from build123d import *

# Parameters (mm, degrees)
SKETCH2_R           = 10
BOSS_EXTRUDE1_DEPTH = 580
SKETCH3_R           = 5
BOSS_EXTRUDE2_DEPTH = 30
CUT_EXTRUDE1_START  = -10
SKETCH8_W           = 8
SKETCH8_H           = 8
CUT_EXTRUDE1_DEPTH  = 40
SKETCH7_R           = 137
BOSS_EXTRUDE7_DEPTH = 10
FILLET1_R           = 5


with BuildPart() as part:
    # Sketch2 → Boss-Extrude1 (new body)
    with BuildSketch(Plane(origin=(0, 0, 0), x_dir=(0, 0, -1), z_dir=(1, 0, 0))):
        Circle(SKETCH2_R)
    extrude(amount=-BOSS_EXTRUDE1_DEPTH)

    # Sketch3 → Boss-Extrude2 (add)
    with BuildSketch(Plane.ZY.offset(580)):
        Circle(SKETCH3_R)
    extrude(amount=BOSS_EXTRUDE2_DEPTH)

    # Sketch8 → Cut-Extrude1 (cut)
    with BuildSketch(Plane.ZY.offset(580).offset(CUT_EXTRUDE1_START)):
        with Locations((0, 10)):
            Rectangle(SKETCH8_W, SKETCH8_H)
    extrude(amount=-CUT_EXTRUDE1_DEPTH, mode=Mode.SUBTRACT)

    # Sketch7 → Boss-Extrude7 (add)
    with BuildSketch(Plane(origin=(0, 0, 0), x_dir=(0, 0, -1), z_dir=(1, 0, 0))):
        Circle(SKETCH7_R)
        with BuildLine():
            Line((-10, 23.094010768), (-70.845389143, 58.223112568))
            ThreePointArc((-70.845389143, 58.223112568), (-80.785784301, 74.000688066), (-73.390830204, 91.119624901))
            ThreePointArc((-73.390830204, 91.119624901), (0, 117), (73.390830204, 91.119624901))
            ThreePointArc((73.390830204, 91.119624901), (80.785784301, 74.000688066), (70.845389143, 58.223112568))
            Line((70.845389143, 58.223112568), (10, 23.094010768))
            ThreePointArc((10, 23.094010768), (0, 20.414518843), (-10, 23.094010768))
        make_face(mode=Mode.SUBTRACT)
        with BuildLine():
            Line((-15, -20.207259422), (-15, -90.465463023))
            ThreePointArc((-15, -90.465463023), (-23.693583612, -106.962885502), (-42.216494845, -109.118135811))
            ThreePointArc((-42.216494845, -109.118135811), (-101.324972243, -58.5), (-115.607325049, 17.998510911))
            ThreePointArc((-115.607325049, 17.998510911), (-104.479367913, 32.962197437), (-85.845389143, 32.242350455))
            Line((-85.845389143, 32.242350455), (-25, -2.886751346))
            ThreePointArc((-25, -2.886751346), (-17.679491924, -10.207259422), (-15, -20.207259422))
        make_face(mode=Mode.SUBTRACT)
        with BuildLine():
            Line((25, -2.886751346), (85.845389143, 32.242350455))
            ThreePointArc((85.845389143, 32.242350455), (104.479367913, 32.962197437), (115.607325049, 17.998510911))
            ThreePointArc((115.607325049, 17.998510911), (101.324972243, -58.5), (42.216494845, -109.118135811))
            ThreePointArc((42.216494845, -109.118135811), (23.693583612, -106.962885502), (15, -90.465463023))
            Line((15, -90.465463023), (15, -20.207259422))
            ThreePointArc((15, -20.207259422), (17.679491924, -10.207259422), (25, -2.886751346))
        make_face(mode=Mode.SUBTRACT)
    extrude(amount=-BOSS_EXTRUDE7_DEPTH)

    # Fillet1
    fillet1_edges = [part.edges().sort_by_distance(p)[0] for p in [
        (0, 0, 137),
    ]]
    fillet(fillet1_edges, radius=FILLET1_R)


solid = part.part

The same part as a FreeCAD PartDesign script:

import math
import FreeCAD as App
import Part
import Sketcher

V = App.Vector
Q = App.Units.Quantity


def edges_at(feature, points):
    """Names of the edges that pass closest to the given points."""
    edges = feature.Shape.Edges
    near = lambda p: min(range(len(edges)), key=lambda i: edges[i].distToShape(Part.Vertex(*p))[0])
    return sorted({f"Edge{near(p) + 1}" for p in points})

doc = App.newDocument("Part")
body = doc.addObject("PartDesign::Body", "Body")

# Sketch on YZ plane
sketch1 = body.newObject("Sketcher::SketchObject", "Sketch")
sketch1.AttachmentSupport = (doc.getObject("YZ_Plane"), [""])
sketch1.MapMode = "FlatFace"
sketch1.addGeometry(Part.Circle(V(0, 0, 0), V(0, 0, 1), 10), False)
sketch1.addConstraint(Sketcher.Constraint("Coincident", 0, 3, -1, 1))
sketch1.addConstraint(Sketcher.Constraint("Diameter", 0, 20.0))
pad1 = body.newObject("PartDesign::Pad", "Pad")
pad1.Profile = sketch1
pad1.Length = 580
pad1.Reversed = True

# Sketch on YZ plane
sketch2 = body.newObject("Sketcher::SketchObject", "Sketch001")
sketch2.AttachmentSupport = (doc.getObject("YZ_Plane"), [""])
sketch2.MapMode = "FlatFace"
sketch2.AttachmentOffset = App.Placement(V(0, 0, -580), App.Rotation())
sketch2.addGeometry(Part.Circle(V(0, 0, 0), V(0, 0, 1), 5), False)
sketch2.addConstraint(Sketcher.Constraint("Coincident", 0, 3, -1, 1))
sketch2.addConstraint(Sketcher.Constraint("Diameter", 0, 10.0))
pad2 = body.newObject("PartDesign::Pad", "Pad001")
pad2.Profile = sketch2
pad2.Length = 30
pad2.Reversed = True

# Sketch on YZ plane
sketch3 = body.newObject("Sketcher::SketchObject", "Sketch002")
sketch3.AttachmentSupport = (doc.getObject("YZ_Plane"), [""])
sketch3.MapMode = "FlatFace"
sketch3.AttachmentOffset = App.Placement(V(0, 0, -570), App.Rotation())
sketch3.addGeometry(Part.LineSegment(V(14, -4, 0), V(6, -4, 0)), False)
sketch3.addGeometry(Part.LineSegment(V(6, -4, 0), V(6, 4, 0)), False)
sketch3.addGeometry(Part.LineSegment(V(6, 4, 0), V(14, 4, 0)), False)
sketch3.addGeometry(Part.LineSegment(V(14, 4, 0), V(14, -4, 0)), False)
sketch3.addConstraint(Sketcher.Constraint("Coincident", 0, 2, 1, 1))
sketch3.addConstraint(Sketcher.Constraint("Coincident", 1, 2, 2, 1))
sketch3.addConstraint(Sketcher.Constraint("Coincident", 2, 2, 3, 1))
sketch3.addConstraint(Sketcher.Constraint("Coincident", 3, 2, 0, 1))
sketch3.addConstraint(Sketcher.Constraint("Horizontal", 0))
sketch3.addConstraint(Sketcher.Constraint("Vertical", 1))
sketch3.addConstraint(Sketcher.Constraint("Horizontal", 2))
sketch3.addConstraint(Sketcher.Constraint("Vertical", 3))
sketch3.addConstraint(Sketcher.Constraint("Equal", 2, 1))
sketch3.addConstraint(Sketcher.Constraint("DistanceX", 0, 2, 0, 1, 8.0))
sketch3.addConstraint(Sketcher.Constraint("DistanceX", -1, 1, 0, 2, 6.0))
sketch3.addConstraint(Sketcher.Constraint("DistanceY", 0, 2, -1, 1, 4.0))
pocket1 = body.newObject("PartDesign::Pocket", "Pocket")
pocket1.Profile = sketch3
pocket1.Length = 40
pocket1.Reversed = True

# Sketch on YZ plane
sketch4 = body.newObject("Sketcher::SketchObject", "Sketch003")
sketch4.AttachmentSupport = (doc.getObject("YZ_Plane"), [""])
sketch4.MapMode = "FlatFace"
sketch4.addGeometry(Part.Circle(V(0, 0, 0), V(0, 0, 1), 137), False)
sketch4.addGeometry(Part.ArcOfCircle(Part.Circle(V(-20.207259, 35, 0), V(0, 0, 1), 20), math.radians(-90), math.radians(-30)), False)
sketch4.addGeometry(Part.LineSegment(V(-20.207259, 15, 0), V(-90.465463, 15, 0)), False)
sketch4.addGeometry(Part.ArcOfCircle(Part.Circle(V(-90.465463, 35, 0), V(0, 0, 1), 20), math.radians(158.849145), math.radians(270)), False)
sketch4.addGeometry(Part.ArcOfCircle(Part.Circle(V(0, 0, 0), V(0, 0, 1), 117), math.radians(81.150855), math.radians(158.849145)), False)
sketch4.addGeometry(Part.ArcOfCircle(Part.Circle(V(14.921842, 95.845389, 0), V(0, 0, 1), 20), math.radians(-30), math.radians(81.150855)), False)
sketch4.addGeometry(Part.LineSegment(V(32.24235, 85.845389, 0), V(-2.886751, 25, 0)), False)
sketch4.addGeometry(Part.ArcOfCircle(Part.Circle(V(-20.207259, -35, 0), V(0, 0, 1), 20), math.radians(30), math.radians(90)), False)
sketch4.addGeometry(Part.LineSegment(V(-2.886751, -25, 0), V(32.24235, -85.845389, 0)), False)
sketch4.addGeometry(Part.ArcOfCircle(Part.Circle(V(14.921842, -95.845389, 0), V(0, 0, 1), 20), math.radians(-81.150855), math.radians(30)), False)
sketch4.addGeometry(Part.ArcOfCircle(Part.Circle(V(0, 0, 0), V(0, 0, 1), 117), math.radians(-158.849145), math.radians(-81.150855)), False)
sketch4.addGeometry(Part.ArcOfCircle(Part.Circle(V(-90.465463, -35, 0), V(0, 0, 1), 20), math.radians(90), math.radians(201.150855)), False)
sketch4.addGeometry(Part.LineSegment(V(-90.465463, -15, 0), V(-20.207259, -15, 0)), False)
sketch4.addGeometry(Part.ArcOfCircle(Part.Circle(V(40.414519, 0, 0), V(0, 0, 1), 20), math.radians(150), math.radians(210)), False)
sketch4.addGeometry(Part.LineSegment(V(23.094011, 10, 0), V(58.223113, 70.845389, 0)), False)
sketch4.addGeometry(Part.ArcOfCircle(Part.Circle(V(75.543621, 60.845389, 0), V(0, 0, 1), 20), math.radians(38.849145), math.radians(150)), False)
sketch4.addGeometry(Part.ArcOfCircle(Part.Circle(V(0, 0, 0), V(0, 0, 1), 117), math.radians(-38.849145), math.radians(38.849145)), False)
sketch4.addGeometry(Part.ArcOfCircle(Part.Circle(V(75.543621, -60.845389, 0), V(0, 0, 1), 20), math.radians(-150), math.radians(-38.849145)), False)
sketch4.addGeometry(Part.LineSegment(V(58.223113, -70.845389, 0), V(23.094011, -10, 0)), False)
sketch4.addConstraint(Sketcher.Constraint("Tangent", 1, 1, 2, 1))
sketch4.addConstraint(Sketcher.Constraint("Tangent", 2, 2, 3, 2))
sketch4.addConstraint(Sketcher.Constraint("Tangent", 3, 1, 4, 2))
sketch4.addConstraint(Sketcher.Constraint("Tangent", 4, 1, 5, 2))
sketch4.addConstraint(Sketcher.Constraint("Tangent", 5, 1, 6, 1))
sketch4.addConstraint(Sketcher.Constraint("Tangent", 6, 2, 1, 2))
sketch4.addConstraint(Sketcher.Constraint("Tangent", 7, 1, 8, 1))
sketch4.addConstraint(Sketcher.Constraint("Tangent", 8, 2, 9, 2))
sketch4.addConstraint(Sketcher.Constraint("Tangent", 9, 1, 10, 2))
sketch4.addConstraint(Sketcher.Constraint("Tangent", 10, 1, 11, 2))
sketch4.addConstraint(Sketcher.Constraint("Tangent", 11, 1, 12, 1))
sketch4.addConstraint(Sketcher.Constraint("Tangent", 12, 2, 7, 2))
sketch4.addConstraint(Sketcher.Constraint("Tangent", 13, 1, 14, 1))
sketch4.addConstraint(Sketcher.Constraint("Tangent", 14, 2, 15, 2))
sketch4.addConstraint(Sketcher.Constraint("Tangent", 15, 1, 16, 2))
sketch4.addConstraint(Sketcher.Constraint("Tangent", 16, 1, 17, 2))
sketch4.addConstraint(Sketcher.Constraint("Tangent", 17, 1, 18, 1))
sketch4.addConstraint(Sketcher.Constraint("Tangent", 18, 2, 13, 2))
sketch4.addConstraint(Sketcher.Constraint("Horizontal", 2))
sketch4.addConstraint(Sketcher.Constraint("Horizontal", 12))
sketch4.addConstraint(Sketcher.Constraint("Coincident", 0, 3, -1, 1))
sketch4.addConstraint(Sketcher.Constraint("Coincident", 4, 3, -1, 1))
sketch4.addConstraint(Sketcher.Constraint("Coincident", 10, 3, -1, 1))
sketch4.addConstraint(Sketcher.Constraint("Coincident", 16, 3, -1, 1))
sketch4.addConstraint(Sketcher.Constraint("Equal", 1, 3))
sketch4.addConstraint(Sketcher.Constraint("Equal", 3, 5))
sketch4.addConstraint(Sketcher.Constraint("Equal", 5, 7))
sketch4.addConstraint(Sketcher.Constraint("Equal", 7, 9))
sketch4.addConstraint(Sketcher.Constraint("Equal", 4, 10))
sketch4.addConstraint(Sketcher.Constraint("Equal", 9, 11))
sketch4.addConstraint(Sketcher.Constraint("Equal", 11, 13))
sketch4.addConstraint(Sketcher.Constraint("Equal", 13, 15))
sketch4.addConstraint(Sketcher.Constraint("Equal", 10, 16))
sketch4.addConstraint(Sketcher.Constraint("Equal", 15, 17))
sketch4.addConstraint(Sketcher.Constraint("Symmetric", 1, 3, 7, 3, -1))
sketch4.addConstraint(Sketcher.Constraint("Symmetric", 14, 2, 17, 1, -1))
sketch4.addConstraint(Sketcher.Constraint("Parallel", 6, 14))
sketch4.addConstraint(Sketcher.Constraint("Parallel", 8, 18))
sketch4.addConstraint(Sketcher.Constraint("Equal", 8, 14))
sketch4.addConstraint(Sketcher.Constraint("Diameter", 0, 274.0))
sketch4.addConstraint(Sketcher.Constraint("Radius", 1, 20.0))
sketch4.addConstraint(Sketcher.Constraint("Radius", 4, 117.0))
sketch4.addConstraint(Sketcher.Constraint("Angle", 6, Q("-120 deg")))
sketch4.addConstraint(Sketcher.Constraint("DistanceY", -1, 1, 1, 3, 35.0))
sketch4.addConstraint(Sketcher.Constraint("DistanceX", 1, 3, 5, 3, 35.129102))
pad3 = body.newObject("PartDesign::Pad", "Pad002")
pad3.Profile = sketch4
pad3.Length = 10
pad3.Reversed = True
doc.recompute()

fillet = body.newObject("PartDesign::Fillet", "Fillet")
fillet.Base = (pad3, edges_at(pad3, [(0, 0, 137)]))
fillet.Radius = 5

doc.recompute()
